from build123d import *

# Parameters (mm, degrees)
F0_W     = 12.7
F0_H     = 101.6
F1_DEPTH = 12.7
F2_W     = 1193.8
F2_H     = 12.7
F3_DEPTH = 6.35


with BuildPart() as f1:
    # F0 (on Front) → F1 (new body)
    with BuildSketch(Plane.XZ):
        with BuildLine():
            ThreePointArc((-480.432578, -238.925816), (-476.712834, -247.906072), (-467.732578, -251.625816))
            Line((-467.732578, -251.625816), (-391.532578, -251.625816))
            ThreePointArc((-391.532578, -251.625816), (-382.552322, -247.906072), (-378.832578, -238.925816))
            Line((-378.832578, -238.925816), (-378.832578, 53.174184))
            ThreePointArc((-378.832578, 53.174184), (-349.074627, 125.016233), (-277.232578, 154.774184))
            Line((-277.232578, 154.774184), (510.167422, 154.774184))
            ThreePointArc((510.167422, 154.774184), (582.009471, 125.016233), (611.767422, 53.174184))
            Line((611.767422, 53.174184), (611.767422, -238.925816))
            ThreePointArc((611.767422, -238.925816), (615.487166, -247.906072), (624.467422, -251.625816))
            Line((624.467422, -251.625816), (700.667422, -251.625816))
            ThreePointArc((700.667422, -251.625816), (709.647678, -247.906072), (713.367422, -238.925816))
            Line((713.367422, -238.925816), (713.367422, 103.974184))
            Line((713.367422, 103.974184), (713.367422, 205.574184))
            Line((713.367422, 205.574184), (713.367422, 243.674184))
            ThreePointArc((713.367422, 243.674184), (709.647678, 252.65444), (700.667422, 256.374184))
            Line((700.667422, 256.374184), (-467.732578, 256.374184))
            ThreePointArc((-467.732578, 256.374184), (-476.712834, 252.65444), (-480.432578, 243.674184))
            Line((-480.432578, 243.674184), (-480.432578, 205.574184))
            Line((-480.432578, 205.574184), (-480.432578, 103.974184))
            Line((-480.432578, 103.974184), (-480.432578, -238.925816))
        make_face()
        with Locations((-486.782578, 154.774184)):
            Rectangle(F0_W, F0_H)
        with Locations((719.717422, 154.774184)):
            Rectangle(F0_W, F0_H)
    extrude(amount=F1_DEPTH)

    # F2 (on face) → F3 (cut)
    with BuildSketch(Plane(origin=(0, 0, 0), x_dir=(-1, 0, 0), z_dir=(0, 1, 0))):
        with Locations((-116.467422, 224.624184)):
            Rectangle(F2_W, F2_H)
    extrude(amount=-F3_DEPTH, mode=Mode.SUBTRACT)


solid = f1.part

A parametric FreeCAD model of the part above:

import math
import FreeCAD as App
import Part
import Sketcher
from FreeCAD import Vector
Q = App.Units.Quantity

doc = App.newDocument("Part")
params = doc.addObject("Spreadsheet::Sheet", "Params")
for row, (alias, value) in enumerate([
    ("sketch1_radius", "4 in"),
    ("sketch1_radius2", "0.5 in"),
    ("sketch1_width", "3 in"),
    ("sketch1_width2", "31 in"),
    ("sketch1_height", "4 in"),
    ("pad1_length", "0.5 in"),
    ("sketch2_width", "47 in"),
    ("sketch2_height", "0.5 in"),
    ("pocket1_length", "0.25 in"),
], start=1):
    params.set(f"A{row}", alias)
    params.set(f"B{row}", "=" + value)
    params.setAlias(f"B{row}", alias)

body = doc.addObject("PartDesign::Body", "Body")

# Sketch on XZ plane
sketch1 = body.newObject("Sketcher::SketchObject", "Sketch")
sketch1.AttachmentSupport = (doc.getObject("XZ_Plane"), [""])
sketch1.MapMode = "FlatFace"
sketch1.addGeometry([
    Part.ArcOfCircle(Part.Circle(Vector(-468, -239, 0), Vector(0, 0, 1), 13), math.radians(-180), math.radians(-90)),  # 0
    Part.LineSegment(Vector(-468, -252, 0), Vector(-392, -252, 0)),  # 1
    Part.ArcOfCircle(Part.Circle(Vector(-392, -239, 0), Vector(0, 0, 1), 13), math.radians(-90), math.radians(0)),  # 2
    Part.LineSegment(Vector(-379, -239, 0), Vector(-379, 53, 0)),  # 3
    Part.ArcOfCircle(Part.Circle(Vector(-277, 53, 0), Vector(0, 0, 1), 102), math.radians(90), math.radians(180)),  # 4
    Part.LineSegment(Vector(-277, 155, 0), Vector(510, 155, 0)),  # 5
    Part.ArcOfCircle(Part.Circle(Vector(510, 53, 0), Vector(0, 0, 1), 102), math.radians(0), math.radians(90)),  # 6
    Part.LineSegment(Vector(612, 53, 0), Vector(612, -239, 0)),  # 7
    Part.ArcOfCircle(Part.Circle(Vector(624, -239, 0), Vector(0, 0, 1), 13), math.radians(-180), math.radians(-90)),  # 8
    Part.LineSegment(Vector(624, -252, 0), Vector(701, -252, 0)),  # 9
    Part.ArcOfCircle(Part.Circle(Vector(701, -239, 0), Vector(0, 0, 1), 13), math.radians(-90), math.radians(0)),  # 10
    Part.LineSegment(Vector(713, -239, 0), Vector(713, 104, 0)),  # 11
    Part.LineSegment(Vector(713, 104, 0), Vector(726, 104, 0)),  # 12
    Part.LineSegment(Vector(726, 104, 0), Vector(726, 206, 0)),  # 13
    Part.LineSegment(Vector(726, 206, 0), Vector(713, 206, 0)),  # 14
    Part.LineSegment(Vector(713, 206, 0), Vector(713, 244, 0)),  # 15
    Part.ArcOfCircle(Part.Circle(Vector(701, 244, 0), Vector(0, 0, 1), 13), math.radians(0), math.radians(90)),  # 16
    Part.LineSegment(Vector(701, 256, 0), Vector(-468, 256, 0)),  # 17
    Part.ArcOfCircle(Part.Circle(Vector(-468, 244, 0), Vector(0, 0, 1), 13), math.radians(90), math.radians(180)),  # 18
    Part.LineSegment(Vector(-480, 244, 0), Vector(-480, 206, 0)),  # 19
    Part.LineSegment(Vector(-480, 206, 0), Vector(-493, 206, 0)),  # 20
    Part.LineSegment(Vector(-493, 206, 0), Vector(-493, 104, 0)),  # 21
    Part.LineSegment(Vector(-493, 104, 0), Vector(-480, 104, 0)),  # 22
    Part.LineSegment(Vector(-480, 104, 0), Vector(-480, -239, 0)),  # 23
], False)
sketch1.addConstraint([
    Sketcher.Constraint("Tangent", 0, 2, 1, 1),
    Sketcher.Constraint("Tangent", 1, 2, 2, 1),
    Sketcher.Constraint("Tangent", 2, 2, 3, 1),
    Sketcher.Constraint("Tangent", 3, 2, 4, 2),
    Sketcher.Constraint("Tangent", 4, 1, 5, 1),
    Sketcher.Constraint("Tangent", 5, 2, 6, 2),
    Sketcher.Constraint("Tangent", 6, 1, 7, 1),
    Sketcher.Constraint("Tangent", 7, 2, 8, 1),
    Sketcher.Constraint("Tangent", 8, 2, 9, 1),
    Sketcher.Constraint("Tangent", 9, 2, 10, 1),
    Sketcher.Constraint("Tangent", 10, 2, 11, 1),
    Sketcher.Constraint("Coincident", 11, 2, 12, 1),
    Sketcher.Constraint("Coincident", 12, 2, 13, 1),
    Sketcher.Constraint("Coincident", 13, 2, 14, 1),
    Sketcher.Constraint("Coincident", 14, 2, 15, 1),
    Sketcher.Constraint("Tangent", 15, 2, 16, 1),
    Sketcher.Constraint("Tangent", 16, 2, 17, 1),
    Sketcher.Constraint("Tangent", 17, 2, 18, 1),
    Sketcher.Constraint("Tangent", 18, 2, 19, 1),
    Sketcher.Constraint("Coincident", 19, 2, 20, 1),
    Sketcher.Constraint("Coincident", 20, 2, 21, 1),
    Sketcher.Constraint("Coincident", 21, 2, 22, 1),
    Sketcher.Constraint("Coincident", 22, 2, 23, 1),
    Sketcher.Constraint("Tangent", 23, 2, 0, 1),
    Sketcher.Constraint("Horizontal", 1),
    Sketcher.Constraint("Vertical", 3),
    Sketcher.Constraint("Horizontal", 5),
    Sketcher.Constraint("Vertical", 7),
    Sketcher.Constraint("Horizontal", 9),
    Sketcher.Constraint("Vertical", 11),
    Sketcher.Constraint("Horizontal", 12),
    Sketcher.Constraint("Vertical", 13),
    Sketcher.Constraint("Horizontal", 14),
    Sketcher.Constraint("Vertical", 15),
    Sketcher.Constraint("Horizontal", 17),
    Sketcher.Constraint("Vertical", 19),
    Sketcher.Constraint("Horizontal", 20),
    Sketcher.Constraint("Vertical", 21),
    Sketcher.Constraint("Horizontal", 22),
    Sketcher.Constraint("Vertical", 23),
    Sketcher.Constraint("Equal", 0, 2),
    Sketcher.Constraint("Equal", 4, 6),
    Sketcher.Constraint("Equal", 2, 8),
    Sketcher.Constraint("Equal", 8, 10),
    Sketcher.Constraint("Equal", 10, 16),
    Sketcher.Constraint("Equal", 16, 18),
    Sketcher.Constraint("Horizontal", 2, 3, 8, 3),
    Sketcher.Constraint("Horizontal", 14, 2, 19, 2),
    Sketcher.Constraint("Horizontal", 12, 2, 21, 2),
    Sketcher.Constraint("Vertical", 10, 3, 16, 3),
    Sketcher.Constraint("Vertical", 0, 3, 18, 3),
    Sketcher.Constraint("Equal", 1, 9),
    Sketcher.Constraint("Equal", 14, 20),
    Sketcher.Constraint("Radius", 4, Q("4 in")),
    Sketcher.Constraint("Radius", 0, Q("0.5 in")),
    Sketcher.Constraint("DistanceX", 1, 1, 1, 2, Q("3 in")),
    Sketcher.Constraint("DistanceX", 5, 1, 5, 2, Q("31 in")),
    Sketcher.Constraint("DistanceY", 13, 1, 13, 2, Q("4 in")),
    Sketcher.Constraint("DistanceX", 12, 1, 12, 2, Q("0.5 in")),
    Sketcher.Constraint("DistanceY", 3, 1, 3, 2, Q("11.5 in")),
    Sketcher.Constraint("DistanceY", 11, 1, 11, 2, Q("13.5 in")),
    Sketcher.Constraint("DistanceY", 15, 1, 15, 2, Q("1.5 in")),
    Sketcher.Constraint("DistanceX", 2, 3, -1, 1, 391.532578),
    Sketcher.Constraint("DistanceY", 0, 3, -1, 1, 238.925816),
])
sketch1.setExpression("Constraints[53]", "Params.sketch1_radius")
sketch1.setExpression("Constraints[54]", "Params.sketch1_radius2")
sketch1.setExpression("Constraints[55]", "Params.sketch1_width")
sketch1.setExpression("Constraints[56]", "Params.sketch1_width2")
sketch1.setExpression("Constraints[57]", "Params.sketch1_height")
pad1 = body.newObject("PartDesign::Pad", "Pad")
pad1.Profile = sketch1
pad1.setExpression("Length", "Params.pad1_length")

# Sketch on XZ plane
sketch2 = body.newObject("Sketcher::SketchObject", "Sketch001")
sketch2.AttachmentSupport = (doc.getObject("XZ_Plane"), [""])
sketch2.MapMode = "FlatFace"
sketch2.addGeometry([
    Part.LineSegment(Vector(713, 231, 0), Vector(713, 218, 0)),
    Part.LineSegment(Vector(713, 218, 0), Vector(-480, 218, 0)),
    Part.LineSegment(Vector(-480, 218, 0), Vector(-480, 231, 0)),
    Part.LineSegment(Vector(-480, 231, 0), Vector(713, 231, 0)),
], False)
sketch2.addConstraint([
    Sketcher.Constraint("Coincident", 0, 2, 1, 1),
    Sketcher.Constraint("Coincident", 1, 2, 2, 1),
    Sketcher.Constraint("Coincident", 2, 2, 3, 1),
    Sketcher.Constraint("Coincident", 3, 2, 0, 1),
    Sketcher.Constraint("Vertical", 0),
    Sketcher.Constraint("Horizontal", 1),
    Sketcher.Constraint("Vertical", 2),
    Sketcher.Constraint("Horizontal", 3),
    Sketcher.Constraint("DistanceX", 1, 2, 1, 1, Q("47 in")),
    Sketcher.Constraint("DistanceY", 0, 2, 0, 1, Q("0.5 in")),
    Sketcher.Constraint("DistanceX", -1, 1, 0, 2, 713.367422),
    Sketcher.Constraint("DistanceY", -1, 1, 0, 2, 218.274184),
])
sketch2.setExpression("Constraints[8]", "Params.sketch2_width")
sketch2.setExpression("Constraints[9]", "Params.sketch2_height")
pocket1 = body.newObject("PartDesign::Pocket", "Pocket")
pocket1.Profile = sketch2
pocket1.setExpression("Length", "Params.pocket1_length")
pocket1.Reversed = True

doc.recompute()
